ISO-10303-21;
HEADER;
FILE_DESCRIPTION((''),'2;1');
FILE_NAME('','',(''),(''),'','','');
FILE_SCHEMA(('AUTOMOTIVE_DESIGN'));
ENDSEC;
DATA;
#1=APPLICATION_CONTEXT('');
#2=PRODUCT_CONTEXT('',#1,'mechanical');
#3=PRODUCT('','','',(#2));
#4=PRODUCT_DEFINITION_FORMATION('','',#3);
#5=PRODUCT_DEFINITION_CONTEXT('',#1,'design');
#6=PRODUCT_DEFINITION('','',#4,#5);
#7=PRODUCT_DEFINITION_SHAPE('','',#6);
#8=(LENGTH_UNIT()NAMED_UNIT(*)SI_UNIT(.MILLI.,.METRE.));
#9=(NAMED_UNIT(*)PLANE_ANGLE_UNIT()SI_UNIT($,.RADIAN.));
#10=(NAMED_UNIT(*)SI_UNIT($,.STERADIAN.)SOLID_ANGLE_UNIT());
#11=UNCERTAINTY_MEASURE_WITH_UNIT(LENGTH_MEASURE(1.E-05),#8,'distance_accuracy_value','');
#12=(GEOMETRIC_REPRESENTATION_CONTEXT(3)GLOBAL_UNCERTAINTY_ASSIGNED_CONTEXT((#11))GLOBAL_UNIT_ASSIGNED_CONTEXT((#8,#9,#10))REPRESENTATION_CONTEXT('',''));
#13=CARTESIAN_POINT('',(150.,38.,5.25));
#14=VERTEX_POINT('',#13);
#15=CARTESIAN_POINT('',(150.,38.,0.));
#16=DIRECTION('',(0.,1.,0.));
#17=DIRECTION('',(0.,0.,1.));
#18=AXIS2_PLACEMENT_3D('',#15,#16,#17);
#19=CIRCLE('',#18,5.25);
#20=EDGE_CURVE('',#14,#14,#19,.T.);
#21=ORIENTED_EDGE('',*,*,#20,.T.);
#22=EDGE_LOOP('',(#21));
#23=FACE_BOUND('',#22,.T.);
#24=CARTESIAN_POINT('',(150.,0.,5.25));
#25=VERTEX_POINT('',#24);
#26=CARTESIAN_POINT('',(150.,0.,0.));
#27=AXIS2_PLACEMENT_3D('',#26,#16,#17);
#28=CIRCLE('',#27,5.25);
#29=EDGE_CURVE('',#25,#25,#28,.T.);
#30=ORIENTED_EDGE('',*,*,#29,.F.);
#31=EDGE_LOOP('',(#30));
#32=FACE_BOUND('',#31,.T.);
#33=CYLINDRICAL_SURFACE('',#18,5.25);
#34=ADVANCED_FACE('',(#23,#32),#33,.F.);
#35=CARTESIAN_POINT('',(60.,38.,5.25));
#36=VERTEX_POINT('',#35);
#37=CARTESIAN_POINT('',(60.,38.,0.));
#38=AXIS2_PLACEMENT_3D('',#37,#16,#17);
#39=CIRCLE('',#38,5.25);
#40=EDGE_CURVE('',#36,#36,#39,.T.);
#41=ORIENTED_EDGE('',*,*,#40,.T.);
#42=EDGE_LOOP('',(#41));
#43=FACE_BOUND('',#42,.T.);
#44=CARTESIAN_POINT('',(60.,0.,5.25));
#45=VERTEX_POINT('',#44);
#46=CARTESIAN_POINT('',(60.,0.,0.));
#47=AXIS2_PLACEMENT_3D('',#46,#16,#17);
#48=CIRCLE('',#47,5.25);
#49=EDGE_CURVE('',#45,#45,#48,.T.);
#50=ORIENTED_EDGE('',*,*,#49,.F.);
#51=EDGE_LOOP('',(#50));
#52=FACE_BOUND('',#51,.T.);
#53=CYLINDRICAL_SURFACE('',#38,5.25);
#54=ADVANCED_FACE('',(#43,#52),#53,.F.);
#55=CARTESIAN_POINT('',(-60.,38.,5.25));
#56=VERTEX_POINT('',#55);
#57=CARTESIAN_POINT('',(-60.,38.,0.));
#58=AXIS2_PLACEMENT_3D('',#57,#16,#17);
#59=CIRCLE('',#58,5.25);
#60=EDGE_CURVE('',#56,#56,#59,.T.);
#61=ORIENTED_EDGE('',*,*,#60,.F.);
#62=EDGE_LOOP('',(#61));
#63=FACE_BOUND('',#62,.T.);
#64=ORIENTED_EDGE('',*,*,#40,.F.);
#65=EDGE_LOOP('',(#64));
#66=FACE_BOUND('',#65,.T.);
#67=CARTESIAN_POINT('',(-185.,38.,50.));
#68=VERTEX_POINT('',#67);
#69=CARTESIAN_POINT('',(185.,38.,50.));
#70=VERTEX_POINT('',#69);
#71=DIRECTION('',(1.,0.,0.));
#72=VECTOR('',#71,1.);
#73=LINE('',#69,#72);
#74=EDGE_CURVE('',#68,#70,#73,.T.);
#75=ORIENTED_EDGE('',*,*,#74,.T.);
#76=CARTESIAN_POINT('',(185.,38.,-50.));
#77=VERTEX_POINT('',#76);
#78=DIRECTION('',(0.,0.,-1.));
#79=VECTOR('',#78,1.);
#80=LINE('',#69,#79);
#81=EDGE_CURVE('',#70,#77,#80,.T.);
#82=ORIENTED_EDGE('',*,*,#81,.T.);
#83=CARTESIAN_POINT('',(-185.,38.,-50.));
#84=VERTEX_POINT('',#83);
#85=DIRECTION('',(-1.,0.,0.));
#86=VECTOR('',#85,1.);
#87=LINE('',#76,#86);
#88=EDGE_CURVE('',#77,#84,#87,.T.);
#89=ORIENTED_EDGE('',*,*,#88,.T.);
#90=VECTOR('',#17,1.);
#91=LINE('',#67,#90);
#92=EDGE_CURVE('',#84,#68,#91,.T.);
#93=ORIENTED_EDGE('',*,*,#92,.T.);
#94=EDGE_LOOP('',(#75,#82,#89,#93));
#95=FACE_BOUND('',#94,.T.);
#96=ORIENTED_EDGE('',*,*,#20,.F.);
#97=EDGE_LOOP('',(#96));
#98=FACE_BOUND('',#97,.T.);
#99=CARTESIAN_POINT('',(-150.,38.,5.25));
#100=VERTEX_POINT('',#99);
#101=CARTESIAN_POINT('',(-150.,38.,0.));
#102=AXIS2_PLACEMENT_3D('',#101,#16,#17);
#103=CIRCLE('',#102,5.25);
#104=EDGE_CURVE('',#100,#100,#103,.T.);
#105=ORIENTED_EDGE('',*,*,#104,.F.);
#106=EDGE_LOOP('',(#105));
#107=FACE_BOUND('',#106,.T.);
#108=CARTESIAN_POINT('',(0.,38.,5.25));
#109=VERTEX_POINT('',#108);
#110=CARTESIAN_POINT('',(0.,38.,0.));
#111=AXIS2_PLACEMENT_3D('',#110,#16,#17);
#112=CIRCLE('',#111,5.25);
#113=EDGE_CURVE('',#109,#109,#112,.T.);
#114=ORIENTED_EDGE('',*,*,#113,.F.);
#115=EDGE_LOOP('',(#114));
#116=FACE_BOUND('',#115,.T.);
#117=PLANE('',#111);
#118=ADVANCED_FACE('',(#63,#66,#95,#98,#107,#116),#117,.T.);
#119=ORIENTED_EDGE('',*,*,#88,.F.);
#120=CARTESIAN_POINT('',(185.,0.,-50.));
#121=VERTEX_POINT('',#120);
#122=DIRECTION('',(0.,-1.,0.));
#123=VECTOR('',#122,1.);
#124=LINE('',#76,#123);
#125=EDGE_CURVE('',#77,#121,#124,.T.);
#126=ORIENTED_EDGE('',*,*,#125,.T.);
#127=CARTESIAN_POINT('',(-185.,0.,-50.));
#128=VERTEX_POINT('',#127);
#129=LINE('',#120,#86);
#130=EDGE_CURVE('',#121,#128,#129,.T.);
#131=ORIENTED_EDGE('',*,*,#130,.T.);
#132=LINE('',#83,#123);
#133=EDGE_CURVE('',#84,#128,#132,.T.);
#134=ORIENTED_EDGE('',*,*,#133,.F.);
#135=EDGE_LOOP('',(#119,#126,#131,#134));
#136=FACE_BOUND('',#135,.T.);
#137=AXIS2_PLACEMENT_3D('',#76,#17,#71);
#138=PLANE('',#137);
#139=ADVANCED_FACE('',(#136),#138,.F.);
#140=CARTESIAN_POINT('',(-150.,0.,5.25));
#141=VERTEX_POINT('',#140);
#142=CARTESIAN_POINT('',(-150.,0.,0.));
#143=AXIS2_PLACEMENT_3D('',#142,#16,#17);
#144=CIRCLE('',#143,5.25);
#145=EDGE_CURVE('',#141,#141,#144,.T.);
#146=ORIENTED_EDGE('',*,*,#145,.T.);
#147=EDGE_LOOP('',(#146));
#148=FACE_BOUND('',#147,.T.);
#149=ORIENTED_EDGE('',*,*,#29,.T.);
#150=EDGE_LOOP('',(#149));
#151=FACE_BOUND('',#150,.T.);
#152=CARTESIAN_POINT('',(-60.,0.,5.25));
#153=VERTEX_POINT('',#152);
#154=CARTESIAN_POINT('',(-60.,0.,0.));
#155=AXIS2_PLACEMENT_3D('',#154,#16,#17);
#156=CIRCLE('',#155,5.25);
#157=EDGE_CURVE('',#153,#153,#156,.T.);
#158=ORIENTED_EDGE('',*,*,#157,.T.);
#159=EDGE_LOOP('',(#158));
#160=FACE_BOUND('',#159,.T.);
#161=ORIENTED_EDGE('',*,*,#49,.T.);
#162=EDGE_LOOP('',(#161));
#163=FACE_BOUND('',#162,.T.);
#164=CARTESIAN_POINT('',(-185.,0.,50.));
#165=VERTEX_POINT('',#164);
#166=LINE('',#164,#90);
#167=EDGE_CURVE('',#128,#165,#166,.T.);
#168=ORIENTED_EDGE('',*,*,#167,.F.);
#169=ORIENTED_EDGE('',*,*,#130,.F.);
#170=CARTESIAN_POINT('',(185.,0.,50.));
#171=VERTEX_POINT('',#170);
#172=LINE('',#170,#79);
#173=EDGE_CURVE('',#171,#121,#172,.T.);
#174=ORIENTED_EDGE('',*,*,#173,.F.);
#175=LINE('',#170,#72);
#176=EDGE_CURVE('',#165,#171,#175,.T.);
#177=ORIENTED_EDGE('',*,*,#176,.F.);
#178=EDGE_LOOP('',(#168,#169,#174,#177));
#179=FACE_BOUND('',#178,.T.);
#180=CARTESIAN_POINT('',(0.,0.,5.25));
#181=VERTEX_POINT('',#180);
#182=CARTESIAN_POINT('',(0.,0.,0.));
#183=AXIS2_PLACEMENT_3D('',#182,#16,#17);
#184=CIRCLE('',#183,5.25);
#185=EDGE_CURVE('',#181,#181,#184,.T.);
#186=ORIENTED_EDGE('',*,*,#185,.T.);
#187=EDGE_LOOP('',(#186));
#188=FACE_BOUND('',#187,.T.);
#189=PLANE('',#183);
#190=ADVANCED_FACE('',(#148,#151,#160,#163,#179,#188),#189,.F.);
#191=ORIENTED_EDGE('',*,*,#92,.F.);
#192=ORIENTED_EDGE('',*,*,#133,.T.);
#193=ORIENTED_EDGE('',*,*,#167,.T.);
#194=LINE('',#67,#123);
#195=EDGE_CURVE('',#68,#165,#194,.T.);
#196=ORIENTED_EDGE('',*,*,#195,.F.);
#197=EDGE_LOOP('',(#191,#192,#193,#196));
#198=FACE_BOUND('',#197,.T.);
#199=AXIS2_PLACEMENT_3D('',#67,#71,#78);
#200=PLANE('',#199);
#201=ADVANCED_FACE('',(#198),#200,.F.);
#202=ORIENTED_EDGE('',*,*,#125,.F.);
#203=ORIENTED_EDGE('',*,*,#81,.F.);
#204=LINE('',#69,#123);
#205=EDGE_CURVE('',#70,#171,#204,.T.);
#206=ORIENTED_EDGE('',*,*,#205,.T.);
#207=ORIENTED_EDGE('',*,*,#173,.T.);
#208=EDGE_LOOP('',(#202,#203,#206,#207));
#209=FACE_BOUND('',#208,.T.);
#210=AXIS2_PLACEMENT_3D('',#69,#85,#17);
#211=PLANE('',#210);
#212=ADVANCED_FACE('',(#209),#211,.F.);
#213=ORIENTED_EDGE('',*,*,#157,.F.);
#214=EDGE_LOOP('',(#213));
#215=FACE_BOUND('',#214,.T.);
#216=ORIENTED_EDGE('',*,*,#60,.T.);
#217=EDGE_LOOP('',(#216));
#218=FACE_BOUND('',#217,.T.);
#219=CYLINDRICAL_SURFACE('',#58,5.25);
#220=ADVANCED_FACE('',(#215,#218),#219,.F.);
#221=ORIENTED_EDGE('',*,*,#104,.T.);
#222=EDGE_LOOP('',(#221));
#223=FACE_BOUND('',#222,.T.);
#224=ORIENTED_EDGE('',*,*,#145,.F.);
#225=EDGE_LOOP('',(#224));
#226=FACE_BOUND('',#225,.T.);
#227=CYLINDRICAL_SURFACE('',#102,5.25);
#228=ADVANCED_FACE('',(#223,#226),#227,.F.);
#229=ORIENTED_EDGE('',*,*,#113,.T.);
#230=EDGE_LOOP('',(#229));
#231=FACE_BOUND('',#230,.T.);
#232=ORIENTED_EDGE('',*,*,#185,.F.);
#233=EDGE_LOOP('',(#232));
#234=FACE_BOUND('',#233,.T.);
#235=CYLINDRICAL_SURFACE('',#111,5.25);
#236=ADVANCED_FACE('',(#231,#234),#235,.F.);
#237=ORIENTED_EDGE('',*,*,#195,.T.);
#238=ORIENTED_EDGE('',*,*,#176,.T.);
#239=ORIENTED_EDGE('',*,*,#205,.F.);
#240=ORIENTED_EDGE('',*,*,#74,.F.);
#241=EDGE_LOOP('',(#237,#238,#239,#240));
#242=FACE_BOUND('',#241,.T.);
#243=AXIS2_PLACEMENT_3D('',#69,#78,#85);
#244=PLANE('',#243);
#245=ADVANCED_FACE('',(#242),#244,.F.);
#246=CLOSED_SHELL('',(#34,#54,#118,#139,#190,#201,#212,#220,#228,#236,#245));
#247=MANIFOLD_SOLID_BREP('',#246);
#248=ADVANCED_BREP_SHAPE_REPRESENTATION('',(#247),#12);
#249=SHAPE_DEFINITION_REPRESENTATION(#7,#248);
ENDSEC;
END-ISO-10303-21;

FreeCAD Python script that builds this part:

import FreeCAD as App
import Part
import Sketcher

V = App.Vector

doc = App.newDocument("Part")
params = doc.addObject("Spreadsheet::Sheet", "Params")
for row, (alias, value) in enumerate([
    ("sketch1_width", "370 mm"),
    ("sketch1_height", "100 mm"),
    ("pad1_length", "38 mm"),
    ("sketch2_diameter", "10.5 mm"),
    ("hole_diameter", "10.5 mm"),
    ("linearpattern_pitch", "90 mm"),
    ("linearpattern2_pitch", "150 mm"),
    ("linearpattern3_pitch", "210 mm"),
    ("linearpattern4_pitch", "300 mm"),
], start=1):
    params.set(f"A{row}", alias)
    params.set(f"B{row}", "=" + value)
    params.setAlias(f"B{row}", alias)

body = doc.addObject("PartDesign::Body", "Body")

sketch1 = doc.addObject("Sketcher::SketchObject", "Sketch")
body.addObject(sketch1)
sketch1.AttachmentSupport = (doc.XZ_Plane, [""])
sketch1.MapMode = "FlatFace"
sketch1.addGeometry(Part.LineSegment(V(-185, -50, 0), V(-185, 50, 0)), False)
sketch1.addGeometry(Part.LineSegment(V(-185, 50, 0), V(185, 50, 0)), False)
sketch1.addGeometry(Part.LineSegment(V(185, 50, 0), V(185, -50, 0)), False)
sketch1.addGeometry(Part.LineSegment(V(185, -50, 0), V(-185, -50, 0)), False)
sketch1.addConstraint(Sketcher.Constraint("Coincident", 0, 2, 1, 1))
sketch1.addConstraint(Sketcher.Constraint("Coincident", 1, 2, 2, 1))
sketch1.addConstraint(Sketcher.Constraint("Coincident", 2, 2, 3, 1))
sketch1.addConstraint(Sketcher.Constraint("Coincident", 3, 2, 0, 1))
sketch1.addConstraint(Sketcher.Constraint("Vertical", 0))
sketch1.addConstraint(Sketcher.Constraint("Horizontal", 1))
sketch1.addConstraint(Sketcher.Constraint("Vertical", 2))
sketch1.addConstraint(Sketcher.Constraint("Horizontal", 3))
sketch1.addConstraint(Sketcher.Constraint("Symmetric", 0, 2, 2, 2, -1, 1))
sketch1.addConstraint(Sketcher.Constraint("DistanceX", 1, 1, 1, 2, 370.0))
sketch1.addConstraint(Sketcher.Constraint("DistanceY", 0, 1, 0, 2, 100.0))
sketch1.setExpression("Constraints[9]", "Params.sketch1_width")
sketch1.setExpression("Constraints[10]", "Params.sketch1_height")
pad1 = doc.addObject("PartDesign::Pad", "Pad")
body.addObject(pad1)
pad1.Profile = sketch1
pad1.setExpression("Length", "Params.pad1_length")
pad1.Reversed = True

sketch2 = doc.addObject("Sketcher::SketchObject", "Sketch001")
body.addObject(sketch2)
sketch2.AttachmentSupport = (doc.XZ_Plane, [""])
sketch2.MapMode = "FlatFace"
sketch2.AttachmentOffset = App.Placement(V(0, 0, -38), App.Rotation())
sketch2.addGeometry(Part.Circle(V(-150, 0, 0), V(0, 0, 1), 5), False)
sketch2.addConstraint(Sketcher.Constraint("PointOnObject", 0, 3, -1))
sketch2.addConstraint(Sketcher.Constraint("Diameter", 0, 10.5))
sketch2.addConstraint(Sketcher.Constraint("DistanceX", 0, 3, -1, 1, 150.0))
sketch2.setExpression("Constraints[1]", "Params.sketch2_diameter")
doc.recompute()
hole = doc.addObject("PartDesign::Hole", "Hole")
body.addObject(hole)
hole.Profile = sketch2
hole.ThreadType = "None"
hole.setExpression("Diameter", "Params.hole_diameter")
hole.DepthType = "ThroughAll"
hole.Reversed = True
doc.recompute()

linearpattern = doc.addObject("PartDesign::LinearPattern", "LinearPattern")
body.addObject(linearpattern)
linearpattern.Originals = [hole]
linearpattern.Direction = (doc.X_Axis, [""])
linearpattern.Mode = "offset"
linearpattern.setExpression("Offset", "Params.linearpattern_pitch")
linearpattern.Occurrences = 2
body.Tip = linearpattern
doc.recompute()

linearpattern2 = doc.addObject("PartDesign::LinearPattern", "LinearPattern001")
body.addObject(linearpattern2)
linearpattern2.Originals = [hole]
linearpattern2.Direction = (doc.X_Axis, [""])
linearpattern2.Mode = "offset"
linearpattern2.setExpression("Offset", "Params.linearpattern2_pitch")
linearpattern2.Occurrences = 2
body.Tip = linearpattern2
doc.recompute()

linearpattern3 = doc.addObject("PartDesign::LinearPattern", "LinearPattern002")
body.addObject(linearpattern3)
linearpattern3.Originals = [hole]
linearpattern3.Direction = (doc.X_Axis, [""])
linearpattern3.Mode = "offset"
linearpattern3.setExpression("Offset", "Params.linearpattern3_pitch")
linearpattern3.Occurrences = 2
body.Tip = linearpattern3
doc.recompute()

linearpattern4 = doc.addObject("PartDesign::LinearPattern", "LinearPattern003")
body.addObject(linearpattern4)
linearpattern4.Originals = [hole]
linearpattern4.Direction = (doc.X_Axis, [""])
linearpattern4.Mode = "offset"
linearpattern4.setExpression("Offset", "Params.linearpattern4_pitch")
linearpattern4.Occurrences = 2
body.Tip = linearpattern4

doc.recompute()
